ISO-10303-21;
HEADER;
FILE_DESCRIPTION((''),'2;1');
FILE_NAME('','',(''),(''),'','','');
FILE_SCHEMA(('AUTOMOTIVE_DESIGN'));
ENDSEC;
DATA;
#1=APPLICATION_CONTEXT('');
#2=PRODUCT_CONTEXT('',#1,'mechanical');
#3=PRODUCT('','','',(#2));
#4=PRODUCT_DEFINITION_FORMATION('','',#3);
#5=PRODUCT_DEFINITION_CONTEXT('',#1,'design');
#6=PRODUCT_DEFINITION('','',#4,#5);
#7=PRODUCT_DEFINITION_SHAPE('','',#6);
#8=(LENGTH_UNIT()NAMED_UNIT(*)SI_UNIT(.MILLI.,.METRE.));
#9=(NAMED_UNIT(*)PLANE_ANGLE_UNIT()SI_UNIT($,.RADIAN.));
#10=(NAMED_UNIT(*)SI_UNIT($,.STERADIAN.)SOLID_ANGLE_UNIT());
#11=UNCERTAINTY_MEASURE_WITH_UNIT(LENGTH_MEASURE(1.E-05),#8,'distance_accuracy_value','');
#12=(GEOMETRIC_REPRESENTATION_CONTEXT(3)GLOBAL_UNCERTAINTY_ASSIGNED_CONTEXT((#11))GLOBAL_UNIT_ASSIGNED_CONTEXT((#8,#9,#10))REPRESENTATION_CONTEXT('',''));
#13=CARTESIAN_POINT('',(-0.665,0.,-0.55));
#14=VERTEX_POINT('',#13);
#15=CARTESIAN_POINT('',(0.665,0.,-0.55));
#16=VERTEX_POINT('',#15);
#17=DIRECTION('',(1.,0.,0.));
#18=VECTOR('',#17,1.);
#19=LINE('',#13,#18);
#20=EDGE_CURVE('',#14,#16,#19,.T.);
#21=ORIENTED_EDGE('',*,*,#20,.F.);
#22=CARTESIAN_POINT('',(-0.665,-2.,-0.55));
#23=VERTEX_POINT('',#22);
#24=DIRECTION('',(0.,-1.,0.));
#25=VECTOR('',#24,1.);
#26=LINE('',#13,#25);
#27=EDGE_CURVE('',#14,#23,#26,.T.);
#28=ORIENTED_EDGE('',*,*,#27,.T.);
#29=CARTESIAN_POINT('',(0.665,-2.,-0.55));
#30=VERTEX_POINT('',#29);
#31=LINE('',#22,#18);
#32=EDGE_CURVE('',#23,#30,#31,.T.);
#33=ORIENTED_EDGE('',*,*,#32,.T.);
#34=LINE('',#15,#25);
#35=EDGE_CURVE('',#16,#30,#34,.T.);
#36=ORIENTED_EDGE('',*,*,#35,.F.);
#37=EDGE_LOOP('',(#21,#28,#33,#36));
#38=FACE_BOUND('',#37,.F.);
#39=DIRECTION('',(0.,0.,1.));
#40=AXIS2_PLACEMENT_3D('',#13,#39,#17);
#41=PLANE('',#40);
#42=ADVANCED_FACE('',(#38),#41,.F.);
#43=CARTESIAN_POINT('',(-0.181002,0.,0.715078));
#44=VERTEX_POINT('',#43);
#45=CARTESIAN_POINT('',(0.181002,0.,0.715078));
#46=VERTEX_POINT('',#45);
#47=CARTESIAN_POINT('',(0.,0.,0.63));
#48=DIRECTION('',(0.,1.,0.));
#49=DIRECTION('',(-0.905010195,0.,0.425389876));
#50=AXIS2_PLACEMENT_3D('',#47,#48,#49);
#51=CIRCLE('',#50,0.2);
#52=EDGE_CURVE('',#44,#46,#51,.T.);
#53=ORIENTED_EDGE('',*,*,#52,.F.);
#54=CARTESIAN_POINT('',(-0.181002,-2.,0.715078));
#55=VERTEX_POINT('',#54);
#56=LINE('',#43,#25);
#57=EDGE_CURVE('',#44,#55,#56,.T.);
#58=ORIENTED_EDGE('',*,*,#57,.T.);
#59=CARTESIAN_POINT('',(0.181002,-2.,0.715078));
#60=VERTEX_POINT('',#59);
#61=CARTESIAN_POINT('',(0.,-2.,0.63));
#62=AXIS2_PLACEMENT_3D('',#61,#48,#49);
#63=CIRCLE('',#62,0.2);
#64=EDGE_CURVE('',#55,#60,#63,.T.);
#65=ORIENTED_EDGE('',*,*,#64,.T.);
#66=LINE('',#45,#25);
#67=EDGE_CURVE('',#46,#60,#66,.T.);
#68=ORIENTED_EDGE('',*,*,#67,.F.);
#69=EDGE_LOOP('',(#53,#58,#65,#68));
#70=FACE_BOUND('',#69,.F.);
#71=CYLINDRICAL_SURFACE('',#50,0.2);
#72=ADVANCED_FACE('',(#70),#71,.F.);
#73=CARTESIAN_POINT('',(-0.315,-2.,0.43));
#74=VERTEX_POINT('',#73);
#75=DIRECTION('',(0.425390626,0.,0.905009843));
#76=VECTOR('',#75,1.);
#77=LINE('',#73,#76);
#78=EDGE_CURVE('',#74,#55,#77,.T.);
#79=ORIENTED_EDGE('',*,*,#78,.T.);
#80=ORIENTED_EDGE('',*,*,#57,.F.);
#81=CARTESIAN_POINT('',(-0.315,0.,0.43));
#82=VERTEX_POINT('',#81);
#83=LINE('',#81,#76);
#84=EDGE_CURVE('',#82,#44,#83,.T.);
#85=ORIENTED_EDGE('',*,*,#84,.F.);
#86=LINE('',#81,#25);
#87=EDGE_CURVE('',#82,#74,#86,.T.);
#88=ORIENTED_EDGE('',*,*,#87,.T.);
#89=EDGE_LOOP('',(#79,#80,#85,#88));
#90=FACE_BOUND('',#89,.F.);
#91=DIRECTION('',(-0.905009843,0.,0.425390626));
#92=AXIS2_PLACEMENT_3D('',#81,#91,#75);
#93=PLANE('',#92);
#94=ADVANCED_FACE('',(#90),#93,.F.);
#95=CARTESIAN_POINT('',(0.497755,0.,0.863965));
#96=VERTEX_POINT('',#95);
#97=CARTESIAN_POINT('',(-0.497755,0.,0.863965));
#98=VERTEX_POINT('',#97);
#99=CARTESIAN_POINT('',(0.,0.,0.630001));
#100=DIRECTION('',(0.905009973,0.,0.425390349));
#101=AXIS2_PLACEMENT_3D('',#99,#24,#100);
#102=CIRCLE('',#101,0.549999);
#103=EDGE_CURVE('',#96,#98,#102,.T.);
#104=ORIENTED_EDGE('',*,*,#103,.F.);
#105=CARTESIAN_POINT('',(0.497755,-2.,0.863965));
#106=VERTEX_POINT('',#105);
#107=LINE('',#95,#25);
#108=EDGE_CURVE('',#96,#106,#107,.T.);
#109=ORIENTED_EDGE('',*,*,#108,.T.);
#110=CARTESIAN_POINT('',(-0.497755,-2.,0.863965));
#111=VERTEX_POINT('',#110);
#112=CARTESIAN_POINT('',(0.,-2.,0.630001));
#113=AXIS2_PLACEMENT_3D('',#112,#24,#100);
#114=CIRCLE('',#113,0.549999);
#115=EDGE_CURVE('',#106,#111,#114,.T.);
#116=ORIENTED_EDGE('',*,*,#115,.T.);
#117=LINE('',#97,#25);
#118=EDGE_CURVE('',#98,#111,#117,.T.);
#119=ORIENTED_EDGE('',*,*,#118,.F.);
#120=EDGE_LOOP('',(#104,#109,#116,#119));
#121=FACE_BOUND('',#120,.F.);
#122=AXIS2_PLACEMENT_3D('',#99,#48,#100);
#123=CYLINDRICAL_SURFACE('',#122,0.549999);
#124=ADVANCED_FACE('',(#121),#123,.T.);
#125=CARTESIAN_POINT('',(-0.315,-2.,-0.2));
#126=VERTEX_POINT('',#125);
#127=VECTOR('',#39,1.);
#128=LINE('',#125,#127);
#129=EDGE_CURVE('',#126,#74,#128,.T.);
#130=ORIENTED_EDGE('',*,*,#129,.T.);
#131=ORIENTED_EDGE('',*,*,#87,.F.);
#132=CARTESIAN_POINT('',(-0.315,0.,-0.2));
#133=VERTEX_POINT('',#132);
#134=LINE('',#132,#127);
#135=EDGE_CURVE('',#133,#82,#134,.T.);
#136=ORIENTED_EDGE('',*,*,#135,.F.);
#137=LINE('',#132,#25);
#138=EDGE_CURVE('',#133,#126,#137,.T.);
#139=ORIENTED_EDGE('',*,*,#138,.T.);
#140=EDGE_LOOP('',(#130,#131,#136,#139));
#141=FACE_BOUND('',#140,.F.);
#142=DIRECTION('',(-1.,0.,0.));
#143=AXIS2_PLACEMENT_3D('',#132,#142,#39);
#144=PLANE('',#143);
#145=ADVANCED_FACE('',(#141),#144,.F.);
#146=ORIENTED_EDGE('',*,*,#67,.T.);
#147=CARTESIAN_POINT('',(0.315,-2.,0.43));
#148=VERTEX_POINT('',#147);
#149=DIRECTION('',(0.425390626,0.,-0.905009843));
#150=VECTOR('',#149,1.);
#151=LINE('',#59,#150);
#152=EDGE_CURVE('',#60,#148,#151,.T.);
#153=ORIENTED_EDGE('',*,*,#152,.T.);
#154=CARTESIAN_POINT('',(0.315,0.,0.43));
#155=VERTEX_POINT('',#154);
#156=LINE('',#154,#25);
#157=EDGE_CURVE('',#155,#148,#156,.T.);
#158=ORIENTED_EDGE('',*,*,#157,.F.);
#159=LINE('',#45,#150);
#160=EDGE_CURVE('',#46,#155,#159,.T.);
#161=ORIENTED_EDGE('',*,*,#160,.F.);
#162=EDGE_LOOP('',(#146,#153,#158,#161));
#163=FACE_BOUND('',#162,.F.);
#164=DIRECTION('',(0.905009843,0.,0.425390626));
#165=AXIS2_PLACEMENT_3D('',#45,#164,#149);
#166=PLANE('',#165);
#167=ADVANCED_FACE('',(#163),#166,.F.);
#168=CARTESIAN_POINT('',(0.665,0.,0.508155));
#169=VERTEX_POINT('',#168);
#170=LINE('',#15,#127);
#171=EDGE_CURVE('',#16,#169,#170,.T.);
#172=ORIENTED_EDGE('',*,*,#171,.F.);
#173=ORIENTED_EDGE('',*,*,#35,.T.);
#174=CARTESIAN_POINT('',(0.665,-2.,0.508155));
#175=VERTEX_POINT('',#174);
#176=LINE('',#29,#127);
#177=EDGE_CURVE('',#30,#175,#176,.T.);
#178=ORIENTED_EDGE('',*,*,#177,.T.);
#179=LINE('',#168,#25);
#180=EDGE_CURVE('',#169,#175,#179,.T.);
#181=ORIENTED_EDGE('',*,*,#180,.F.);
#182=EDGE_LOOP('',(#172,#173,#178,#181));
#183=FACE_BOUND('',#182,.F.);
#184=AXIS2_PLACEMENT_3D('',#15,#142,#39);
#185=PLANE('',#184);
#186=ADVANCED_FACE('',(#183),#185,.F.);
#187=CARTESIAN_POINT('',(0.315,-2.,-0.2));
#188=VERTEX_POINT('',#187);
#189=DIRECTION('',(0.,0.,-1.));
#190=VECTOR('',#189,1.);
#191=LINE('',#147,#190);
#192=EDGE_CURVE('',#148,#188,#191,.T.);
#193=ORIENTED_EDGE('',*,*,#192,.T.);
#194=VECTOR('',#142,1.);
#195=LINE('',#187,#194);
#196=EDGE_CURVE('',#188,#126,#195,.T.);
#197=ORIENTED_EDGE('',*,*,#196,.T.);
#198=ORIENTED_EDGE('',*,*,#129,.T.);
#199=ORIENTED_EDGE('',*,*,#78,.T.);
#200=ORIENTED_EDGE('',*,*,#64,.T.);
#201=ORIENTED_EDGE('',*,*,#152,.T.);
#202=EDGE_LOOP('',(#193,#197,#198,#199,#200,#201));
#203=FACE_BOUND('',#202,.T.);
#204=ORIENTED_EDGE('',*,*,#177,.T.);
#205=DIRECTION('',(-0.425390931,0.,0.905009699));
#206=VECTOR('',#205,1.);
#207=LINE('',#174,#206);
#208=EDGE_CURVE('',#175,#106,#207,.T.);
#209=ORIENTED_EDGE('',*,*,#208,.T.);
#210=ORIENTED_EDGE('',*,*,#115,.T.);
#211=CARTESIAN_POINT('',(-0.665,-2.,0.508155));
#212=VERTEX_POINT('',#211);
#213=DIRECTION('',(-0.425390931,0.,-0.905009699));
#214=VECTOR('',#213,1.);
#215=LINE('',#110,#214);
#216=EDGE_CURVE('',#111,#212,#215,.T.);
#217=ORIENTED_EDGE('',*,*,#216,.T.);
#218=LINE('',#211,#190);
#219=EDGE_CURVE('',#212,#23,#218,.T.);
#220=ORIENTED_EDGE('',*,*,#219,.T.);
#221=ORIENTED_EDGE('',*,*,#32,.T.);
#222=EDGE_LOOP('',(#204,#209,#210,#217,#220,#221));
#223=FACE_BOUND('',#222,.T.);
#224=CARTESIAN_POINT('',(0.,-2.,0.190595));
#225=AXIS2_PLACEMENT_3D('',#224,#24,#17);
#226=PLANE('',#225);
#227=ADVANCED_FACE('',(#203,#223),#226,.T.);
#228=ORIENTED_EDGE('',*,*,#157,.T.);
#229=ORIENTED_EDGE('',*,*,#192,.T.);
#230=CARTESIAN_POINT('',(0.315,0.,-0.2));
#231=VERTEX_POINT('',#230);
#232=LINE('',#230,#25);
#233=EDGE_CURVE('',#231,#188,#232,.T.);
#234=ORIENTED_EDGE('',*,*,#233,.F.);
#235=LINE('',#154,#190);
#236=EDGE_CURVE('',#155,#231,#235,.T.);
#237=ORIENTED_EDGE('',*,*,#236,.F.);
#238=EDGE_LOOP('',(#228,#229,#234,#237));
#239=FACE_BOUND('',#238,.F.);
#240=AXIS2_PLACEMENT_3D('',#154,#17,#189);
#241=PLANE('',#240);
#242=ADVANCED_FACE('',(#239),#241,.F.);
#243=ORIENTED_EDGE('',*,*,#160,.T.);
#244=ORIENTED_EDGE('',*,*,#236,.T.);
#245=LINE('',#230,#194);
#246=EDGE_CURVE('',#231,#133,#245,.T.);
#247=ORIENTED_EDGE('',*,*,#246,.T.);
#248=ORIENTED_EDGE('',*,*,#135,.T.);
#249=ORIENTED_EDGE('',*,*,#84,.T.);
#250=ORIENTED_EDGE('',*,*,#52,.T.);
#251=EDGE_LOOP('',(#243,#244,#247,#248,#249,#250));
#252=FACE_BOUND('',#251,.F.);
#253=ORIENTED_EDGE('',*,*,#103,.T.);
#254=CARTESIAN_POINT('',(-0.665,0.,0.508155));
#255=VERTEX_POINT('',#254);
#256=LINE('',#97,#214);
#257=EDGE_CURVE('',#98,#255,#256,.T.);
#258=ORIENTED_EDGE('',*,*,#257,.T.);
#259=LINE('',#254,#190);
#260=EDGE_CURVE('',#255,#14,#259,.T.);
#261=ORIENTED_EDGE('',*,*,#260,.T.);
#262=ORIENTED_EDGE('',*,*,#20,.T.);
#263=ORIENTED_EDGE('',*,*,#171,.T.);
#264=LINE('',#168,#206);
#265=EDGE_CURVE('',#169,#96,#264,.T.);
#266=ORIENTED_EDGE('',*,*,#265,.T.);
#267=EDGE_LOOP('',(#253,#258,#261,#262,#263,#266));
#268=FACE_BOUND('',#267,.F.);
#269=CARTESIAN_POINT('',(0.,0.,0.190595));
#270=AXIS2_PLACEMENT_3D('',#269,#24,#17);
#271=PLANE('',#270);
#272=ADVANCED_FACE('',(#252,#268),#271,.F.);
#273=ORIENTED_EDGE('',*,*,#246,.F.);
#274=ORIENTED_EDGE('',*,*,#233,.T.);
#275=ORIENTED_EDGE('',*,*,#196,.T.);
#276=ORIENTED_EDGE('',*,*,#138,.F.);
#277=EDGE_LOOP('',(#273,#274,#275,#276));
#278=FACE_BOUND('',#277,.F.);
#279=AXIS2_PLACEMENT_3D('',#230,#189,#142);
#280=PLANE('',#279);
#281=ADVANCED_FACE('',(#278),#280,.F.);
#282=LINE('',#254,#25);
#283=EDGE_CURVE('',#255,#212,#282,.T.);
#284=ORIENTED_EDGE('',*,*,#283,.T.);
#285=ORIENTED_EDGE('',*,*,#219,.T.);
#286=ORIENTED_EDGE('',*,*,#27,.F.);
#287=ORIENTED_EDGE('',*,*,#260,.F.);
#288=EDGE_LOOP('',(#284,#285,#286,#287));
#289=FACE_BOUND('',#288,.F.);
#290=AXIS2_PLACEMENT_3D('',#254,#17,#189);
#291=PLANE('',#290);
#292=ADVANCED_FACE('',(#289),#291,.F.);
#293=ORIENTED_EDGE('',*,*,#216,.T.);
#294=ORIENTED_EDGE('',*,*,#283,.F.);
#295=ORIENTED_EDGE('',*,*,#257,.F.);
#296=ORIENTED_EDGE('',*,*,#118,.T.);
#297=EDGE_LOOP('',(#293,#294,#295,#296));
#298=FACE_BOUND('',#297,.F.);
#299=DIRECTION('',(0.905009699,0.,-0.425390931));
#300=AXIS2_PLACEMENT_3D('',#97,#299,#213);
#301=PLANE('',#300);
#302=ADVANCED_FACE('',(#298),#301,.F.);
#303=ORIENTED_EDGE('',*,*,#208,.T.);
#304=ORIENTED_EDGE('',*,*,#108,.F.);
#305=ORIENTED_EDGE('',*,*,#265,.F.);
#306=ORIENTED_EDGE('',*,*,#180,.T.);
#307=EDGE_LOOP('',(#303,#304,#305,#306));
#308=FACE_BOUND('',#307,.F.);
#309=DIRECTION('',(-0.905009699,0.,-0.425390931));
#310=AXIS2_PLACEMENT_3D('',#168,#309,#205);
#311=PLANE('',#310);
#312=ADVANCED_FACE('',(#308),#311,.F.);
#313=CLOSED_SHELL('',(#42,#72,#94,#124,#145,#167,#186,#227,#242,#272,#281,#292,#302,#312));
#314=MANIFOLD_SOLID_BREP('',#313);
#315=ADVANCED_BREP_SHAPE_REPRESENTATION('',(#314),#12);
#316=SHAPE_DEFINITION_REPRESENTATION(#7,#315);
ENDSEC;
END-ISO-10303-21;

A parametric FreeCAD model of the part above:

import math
import FreeCAD as App
import Part
import Sketcher

V = App.Vector

doc = App.newDocument("Part")
body = doc.addObject("PartDesign::Body", "Body")

# Sketch on XZ plane
sketch1 = body.newObject("Sketcher::SketchObject", "Sketch")
sketch1.AttachmentSupport = (doc.getObject("XZ_Plane"), [""])
sketch1.MapMode = "FlatFace"
sketch1.addGeometry([
    Part.LineSegment(V(-0.67, 0.51, 0), V(-0.67, -0.55, 0)),  # 0
    Part.LineSegment(V(-0.67, -0.55, 0), V(0.67, -0.55, 0)),  # 1
    Part.LineSegment(V(0.67, -0.55, 0), V(0.67, 0.51, 0)),  # 2
    Part.LineSegment(V(0.67, 0.51, 0), V(0.5, 0.86, 0)),  # 3
    Part.ArcOfCircle(Part.Circle(V(0, 0.63, 0), V(0, 0, 1), 0.55), math.radians(25), math.radians(155)),  # 4
    Part.LineSegment(V(-0.5, 0.86, 0), V(-0.67, 0.51, 0)),  # 5
    Part.LineSegment(V(0.32, 0.43, 0), V(0.32, -0.2, 0)),  # 6
    Part.LineSegment(V(0.32, -0.2, 0), V(-0.32, -0.2, 0)),  # 7
    Part.LineSegment(V(-0.32, -0.2, 0), V(-0.32, 0.43, 0)),  # 8
    Part.LineSegment(V(-0.32, 0.43, 0), V(-0.18, 0.72, 0)),  # 9
    Part.ArcOfCircle(Part.Circle(V(0, 0.63, 0), V(0, 0, 1), 0.2), math.radians(25), math.radians(155)),  # 10
    Part.LineSegment(V(0.18, 0.72, 0), V(0.32, 0.43, 0)),  # 11
], False)
sketch1.addConstraint([
    Sketcher.Constraint("Coincident", 0, 2, 1, 1),
    Sketcher.Constraint("Coincident", 1, 2, 2, 1),
    Sketcher.Constraint("Coincident", 2, 2, 3, 1),
    Sketcher.Constraint("Tangent", 3, 2, 4, 1),
    Sketcher.Constraint("Tangent", 4, 2, 5, 1),
    Sketcher.Constraint("Coincident", 5, 2, 0, 1),
    Sketcher.Constraint("Coincident", 6, 2, 7, 1),
    Sketcher.Constraint("Coincident", 7, 2, 8, 1),
    Sketcher.Constraint("Coincident", 8, 2, 9, 1),
    Sketcher.Constraint("Tangent", 9, 2, 10, 2),
    Sketcher.Constraint("Tangent", 10, 1, 11, 1),
    Sketcher.Constraint("Coincident", 11, 2, 6, 1),
    Sketcher.Constraint("Vertical", 0),
    Sketcher.Constraint("Horizontal", 1),
    Sketcher.Constraint("Vertical", 2),
    Sketcher.Constraint("Vertical", 6),
    Sketcher.Constraint("Horizontal", 7),
    Sketcher.Constraint("Vertical", 8),
    Sketcher.Constraint("Coincident", 10, 3, 4, 3),
    Sketcher.Constraint("Symmetric", 3, 2, 4, 2, -2),
    Sketcher.Constraint("Symmetric", 8, 2, 11, 2, -2),
    Sketcher.Constraint("Parallel", 5, 9),
    Sketcher.Constraint("Horizontal", 2, 2, 5, 2),
    Sketcher.Constraint("Equal", 7, 6),
    Sketcher.Constraint("Radius", 10, 0.2),
    Sketcher.Constraint("Radius", 4, 0.549999),
    Sketcher.Constraint("DistanceX", 1, 1, 1, 2, 1.33),
    Sketcher.Constraint("DistanceX", 7, 2, 7, 1, 0.63),
    Sketcher.Constraint("DistanceY", 6, 2, -1, 1, 0.2),
    Sketcher.Constraint("DistanceY", 8, 2, 10, 3, 0.2),
    Sketcher.Constraint("DistanceY", 0, 2, -1, 1, 0.55),
])
pad1 = body.newObject("PartDesign::Pad", "Pad")
pad1.Profile = sketch1
pad1.Length = 2

doc.recompute()
